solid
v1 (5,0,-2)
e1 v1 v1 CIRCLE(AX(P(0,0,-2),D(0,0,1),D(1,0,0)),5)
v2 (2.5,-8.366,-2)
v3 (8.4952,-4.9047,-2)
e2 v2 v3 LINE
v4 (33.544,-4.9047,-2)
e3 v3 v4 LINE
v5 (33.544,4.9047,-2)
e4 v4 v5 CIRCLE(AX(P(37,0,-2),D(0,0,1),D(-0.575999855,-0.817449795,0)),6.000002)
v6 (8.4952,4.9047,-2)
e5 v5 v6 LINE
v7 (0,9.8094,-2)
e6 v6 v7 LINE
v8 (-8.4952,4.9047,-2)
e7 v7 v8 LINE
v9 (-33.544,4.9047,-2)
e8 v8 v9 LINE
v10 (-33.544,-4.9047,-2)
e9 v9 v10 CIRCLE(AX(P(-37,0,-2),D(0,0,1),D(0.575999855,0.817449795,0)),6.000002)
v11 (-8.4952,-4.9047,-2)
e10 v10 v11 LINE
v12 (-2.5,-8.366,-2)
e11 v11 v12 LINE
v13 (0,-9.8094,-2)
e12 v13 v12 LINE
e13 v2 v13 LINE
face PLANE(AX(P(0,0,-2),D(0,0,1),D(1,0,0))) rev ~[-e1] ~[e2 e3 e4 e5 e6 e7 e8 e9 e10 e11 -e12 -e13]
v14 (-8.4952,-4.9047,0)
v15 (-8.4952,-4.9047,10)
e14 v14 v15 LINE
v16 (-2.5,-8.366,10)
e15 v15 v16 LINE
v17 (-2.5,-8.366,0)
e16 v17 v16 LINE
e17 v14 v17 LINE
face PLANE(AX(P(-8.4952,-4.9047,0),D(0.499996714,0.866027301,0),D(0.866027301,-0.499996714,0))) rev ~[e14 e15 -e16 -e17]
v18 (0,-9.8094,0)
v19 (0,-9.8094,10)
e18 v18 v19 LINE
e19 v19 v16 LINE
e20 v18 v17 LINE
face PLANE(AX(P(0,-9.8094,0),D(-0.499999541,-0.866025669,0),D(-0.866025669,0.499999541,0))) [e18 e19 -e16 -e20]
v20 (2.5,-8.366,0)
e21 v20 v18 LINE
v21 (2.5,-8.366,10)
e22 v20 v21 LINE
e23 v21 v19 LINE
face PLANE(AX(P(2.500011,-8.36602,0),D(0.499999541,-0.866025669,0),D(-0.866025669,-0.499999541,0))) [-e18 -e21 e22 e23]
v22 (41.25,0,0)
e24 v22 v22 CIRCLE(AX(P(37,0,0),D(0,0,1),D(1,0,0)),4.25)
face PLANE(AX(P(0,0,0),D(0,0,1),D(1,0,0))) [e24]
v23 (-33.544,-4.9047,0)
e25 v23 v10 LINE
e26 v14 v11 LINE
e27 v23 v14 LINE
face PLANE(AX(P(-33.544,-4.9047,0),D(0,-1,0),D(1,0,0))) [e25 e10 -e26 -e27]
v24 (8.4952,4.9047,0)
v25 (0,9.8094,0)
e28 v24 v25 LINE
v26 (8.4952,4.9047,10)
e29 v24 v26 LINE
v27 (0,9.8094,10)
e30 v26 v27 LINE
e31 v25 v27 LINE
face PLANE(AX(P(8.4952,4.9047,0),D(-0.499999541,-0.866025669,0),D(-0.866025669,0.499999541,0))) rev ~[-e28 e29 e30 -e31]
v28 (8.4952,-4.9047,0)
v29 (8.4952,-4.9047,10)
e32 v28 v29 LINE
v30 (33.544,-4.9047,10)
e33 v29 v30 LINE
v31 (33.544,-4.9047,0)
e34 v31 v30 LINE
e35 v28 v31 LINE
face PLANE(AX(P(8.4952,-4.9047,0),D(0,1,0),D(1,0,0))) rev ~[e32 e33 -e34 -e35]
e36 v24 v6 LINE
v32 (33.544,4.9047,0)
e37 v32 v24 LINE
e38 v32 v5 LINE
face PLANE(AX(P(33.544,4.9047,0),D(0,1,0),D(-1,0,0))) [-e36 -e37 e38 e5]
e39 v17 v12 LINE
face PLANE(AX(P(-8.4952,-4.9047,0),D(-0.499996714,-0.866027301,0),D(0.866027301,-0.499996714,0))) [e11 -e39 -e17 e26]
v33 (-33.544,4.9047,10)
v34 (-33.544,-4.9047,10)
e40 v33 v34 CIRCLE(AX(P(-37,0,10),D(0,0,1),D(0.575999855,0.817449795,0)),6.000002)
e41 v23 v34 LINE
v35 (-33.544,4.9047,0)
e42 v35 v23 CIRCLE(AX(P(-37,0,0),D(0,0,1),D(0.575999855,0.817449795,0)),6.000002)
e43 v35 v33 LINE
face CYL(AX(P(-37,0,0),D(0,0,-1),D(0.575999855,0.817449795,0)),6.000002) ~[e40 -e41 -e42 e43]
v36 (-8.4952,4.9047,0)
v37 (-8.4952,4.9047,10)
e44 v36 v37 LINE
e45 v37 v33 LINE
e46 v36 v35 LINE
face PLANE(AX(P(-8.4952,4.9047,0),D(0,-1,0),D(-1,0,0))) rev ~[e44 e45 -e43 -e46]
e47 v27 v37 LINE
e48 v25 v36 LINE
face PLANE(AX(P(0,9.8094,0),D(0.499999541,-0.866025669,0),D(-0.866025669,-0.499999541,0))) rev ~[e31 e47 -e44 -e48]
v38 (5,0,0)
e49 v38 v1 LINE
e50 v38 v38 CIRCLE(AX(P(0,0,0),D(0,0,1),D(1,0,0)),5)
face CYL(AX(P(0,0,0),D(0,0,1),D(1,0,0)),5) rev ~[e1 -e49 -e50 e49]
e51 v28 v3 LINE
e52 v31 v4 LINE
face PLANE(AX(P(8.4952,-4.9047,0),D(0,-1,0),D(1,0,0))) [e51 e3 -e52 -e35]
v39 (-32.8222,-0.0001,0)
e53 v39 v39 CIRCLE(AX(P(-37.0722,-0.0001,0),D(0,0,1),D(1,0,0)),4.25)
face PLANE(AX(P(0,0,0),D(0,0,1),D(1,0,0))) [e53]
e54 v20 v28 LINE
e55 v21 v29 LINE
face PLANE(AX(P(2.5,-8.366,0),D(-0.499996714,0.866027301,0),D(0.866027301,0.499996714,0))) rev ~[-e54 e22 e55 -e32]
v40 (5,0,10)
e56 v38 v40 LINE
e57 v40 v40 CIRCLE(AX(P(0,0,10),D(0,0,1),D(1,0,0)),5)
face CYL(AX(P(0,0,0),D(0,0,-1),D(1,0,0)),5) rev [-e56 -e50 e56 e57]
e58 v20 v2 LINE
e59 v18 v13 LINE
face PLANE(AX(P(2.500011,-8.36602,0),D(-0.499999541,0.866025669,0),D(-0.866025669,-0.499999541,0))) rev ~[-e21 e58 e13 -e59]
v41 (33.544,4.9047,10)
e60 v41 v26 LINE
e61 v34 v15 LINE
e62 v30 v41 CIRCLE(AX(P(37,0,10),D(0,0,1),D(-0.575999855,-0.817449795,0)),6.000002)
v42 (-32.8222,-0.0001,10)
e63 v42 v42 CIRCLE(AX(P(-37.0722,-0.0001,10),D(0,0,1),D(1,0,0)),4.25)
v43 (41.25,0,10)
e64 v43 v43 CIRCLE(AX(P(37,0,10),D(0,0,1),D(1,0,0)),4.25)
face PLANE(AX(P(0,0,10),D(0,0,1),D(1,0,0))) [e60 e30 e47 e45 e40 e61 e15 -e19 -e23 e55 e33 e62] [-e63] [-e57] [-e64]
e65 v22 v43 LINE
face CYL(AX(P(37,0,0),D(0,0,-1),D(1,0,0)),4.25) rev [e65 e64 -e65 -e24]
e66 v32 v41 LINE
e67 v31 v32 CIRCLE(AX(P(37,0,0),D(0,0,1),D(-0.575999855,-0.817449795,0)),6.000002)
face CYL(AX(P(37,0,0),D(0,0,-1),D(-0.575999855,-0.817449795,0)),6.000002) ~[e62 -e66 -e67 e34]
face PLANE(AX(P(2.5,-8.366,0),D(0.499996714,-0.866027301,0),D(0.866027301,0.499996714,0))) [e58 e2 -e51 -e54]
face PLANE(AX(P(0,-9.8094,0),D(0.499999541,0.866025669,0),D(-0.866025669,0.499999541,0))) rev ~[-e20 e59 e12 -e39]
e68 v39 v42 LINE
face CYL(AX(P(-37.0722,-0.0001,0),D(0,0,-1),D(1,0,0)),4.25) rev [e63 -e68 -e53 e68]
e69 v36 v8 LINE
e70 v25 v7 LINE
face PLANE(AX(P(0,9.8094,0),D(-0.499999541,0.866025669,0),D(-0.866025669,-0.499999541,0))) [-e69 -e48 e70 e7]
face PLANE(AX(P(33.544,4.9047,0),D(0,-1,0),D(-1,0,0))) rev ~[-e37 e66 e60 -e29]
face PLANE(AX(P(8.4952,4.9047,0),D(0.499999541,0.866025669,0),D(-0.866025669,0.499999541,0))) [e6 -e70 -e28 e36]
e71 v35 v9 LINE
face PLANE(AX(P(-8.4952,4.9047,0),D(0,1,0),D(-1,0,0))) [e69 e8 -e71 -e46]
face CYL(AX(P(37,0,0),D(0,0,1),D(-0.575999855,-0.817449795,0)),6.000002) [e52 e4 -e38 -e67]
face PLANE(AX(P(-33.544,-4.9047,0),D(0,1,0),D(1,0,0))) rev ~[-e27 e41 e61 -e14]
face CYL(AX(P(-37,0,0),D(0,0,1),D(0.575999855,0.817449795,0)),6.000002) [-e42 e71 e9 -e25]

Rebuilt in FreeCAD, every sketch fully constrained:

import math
import FreeCAD as App
import Part
import Sketcher
Q = App.Units.Quantity

doc = App.newDocument("Part")
body = doc.addObject("PartDesign::Body", "Body")

# Sketch on XY plane
sketch1 = body.newObject("Sketcher::SketchObject", "Sketch")
sketch1.AttachmentSupport = (doc.getObject("XY_Plane"), [""])
sketch1.MapMode = "FlatFace"
sketch1.addGeometry([
    Part.LineSegment(App.Vector(-8.5, -4.9, 0), App.Vector(-2.5, -8.4, 0)),  # 0
    Part.LineSegment(App.Vector(-2.5, -8.4, 0), App.Vector(0, -9.8, 0)),  # 1
    Part.LineSegment(App.Vector(0, -9.8, 0), App.Vector(2.5, -8.4, 0)),  # 2
    Part.LineSegment(App.Vector(2.5, -8.4, 0), App.Vector(8.5, -4.9, 0)),  # 3
    Part.LineSegment(App.Vector(8.5, -4.9, 0), App.Vector(33.5, -4.9, 0)),  # 4
    Part.ArcOfCircle(Part.Circle(App.Vector(37, 0, 0), App.Vector(0, 0, 1), 6), math.radians(-125), math.radians(125)),  # 5
    Part.LineSegment(App.Vector(33.5, 4.9, 0), App.Vector(8.5, 4.9, 0)),  # 6
    Part.LineSegment(App.Vector(8.5, 4.9, 0), App.Vector(0, 9.8, 0)),  # 7
    Part.LineSegment(App.Vector(0, 9.8, 0), App.Vector(-8.5, 4.9, 0)),  # 8
    Part.LineSegment(App.Vector(-8.5, 4.9, 0), App.Vector(-33.5, 4.9, 0)),  # 9
    Part.ArcOfCircle(Part.Circle(App.Vector(-37, 0, 0), App.Vector(0, 0, 1), 6), math.radians(55), math.radians(305)),  # 10
    Part.LineSegment(App.Vector(-33.5, -4.9, 0), App.Vector(-8.5, -4.9, 0)),  # 11
    Part.Circle(App.Vector(0, 0, 0), App.Vector(0, 0, 1), 5),  # 12
], False)
sketch1.addConstraint([
    Sketcher.Constraint("Coincident", 0, 2, 1, 1),
    Sketcher.Constraint("Coincident", 1, 2, 2, 1),
    Sketcher.Constraint("Coincident", 2, 2, 3, 1),
    Sketcher.Constraint("Coincident", 3, 2, 4, 1),
    Sketcher.Constraint("Coincident", 4, 2, 5, 1),
    Sketcher.Constraint("Coincident", 5, 2, 6, 1),
    Sketcher.Constraint("Coincident", 6, 2, 7, 1),
    Sketcher.Constraint("Coincident", 7, 2, 8, 1),
    Sketcher.Constraint("Coincident", 8, 2, 9, 1),
    Sketcher.Constraint("Coincident", 9, 2, 10, 1),
    Sketcher.Constraint("Coincident", 10, 2, 11, 1),
    Sketcher.Constraint("Coincident", 11, 2, 0, 1),
    Sketcher.Constraint("Horizontal", 4),
    Sketcher.Constraint("Horizontal", 6),
    Sketcher.Constraint("Horizontal", 9),
    Sketcher.Constraint("Horizontal", 11),
    Sketcher.Constraint("Coincident", 12, 3, -1, 1),
    Sketcher.Constraint("Equal", 5, 10),
    Sketcher.Constraint("Symmetric", 5, 3, 10, 3, -1, 1),
    Sketcher.Constraint("Symmetric", 1, 2, 7, 2, -1, 1),
    Sketcher.Constraint("Symmetric", 3, 2, 8, 2, -1, 1),
    Sketcher.Constraint("Symmetric", 6, 2, 11, 2, -1, 1),
    Sketcher.Constraint("Symmetric", 0, 2, 2, 2, -2),
    Sketcher.Constraint("Symmetric", 6, 2, 8, 2, -2),
    Sketcher.Constraint("PointOnObject", 5, 3, -1),
    Sketcher.Constraint("PointOnObject", 1, 2, -2),
    Sketcher.Constraint("Parallel", 0, 1),
    Sketcher.Constraint("Diameter", 12, Q("10 mm")),
    Sketcher.Constraint("Radius", 5, Q("6 mm")),
    Sketcher.Constraint("Angle", 0, Q("-29.9998 deg")),
    Sketcher.Constraint("DistanceX", -1, 1, 5, 3, Q("37 mm")),
    Sketcher.Constraint("DistanceX", 0, 2, 2, 2, Q("5 mm")),
    Sketcher.Constraint("DistanceX", 4, 1, 4, 2, Q("25.0488 mm")),
    Sketcher.Constraint("DistanceY", 0, 2, -1, 1, Q("8.366 mm")),
])
pad1 = body.newObject("PartDesign::Pad", "Pad")
pad1.Profile = sketch1
pad1.Length = 2
pad1.Reversed = True

# Sketch on XY plane
sketch2 = body.newObject("Sketcher::SketchObject", "Sketch001")
sketch2.AttachmentSupport = (doc.getObject("XY_Plane"), [""])
sketch2.MapMode = "FlatFace"
sketch2.addGeometry([
    Part.LineSegment(App.Vector(-8.5, -4.9, 0), App.Vector(-2.5, -8.4, 0)),  # 0
    Part.LineSegment(App.Vector(-2.5, -8.4, 0), App.Vector(0, -9.8, 0)),  # 1
    Part.LineSegment(App.Vector(0, -9.8, 0), App.Vector(2.5, -8.4, 0)),  # 2
    Part.LineSegment(App.Vector(2.5, -8.4, 0), App.Vector(8.5, -4.9, 0)),  # 3
    Part.LineSegment(App.Vector(8.5, -4.9, 0), App.Vector(33.5, -4.9, 0)),  # 4
    Part.ArcOfCircle(Part.Circle(App.Vector(37, 0, 0), App.Vector(0, 0, 1), 6), math.radians(-125), math.radians(125)),  # 5
    Part.LineSegment(App.Vector(33.5, 4.9, 0), App.Vector(8.5, 4.9, 0)),  # 6
    Part.LineSegment(App.Vector(8.5, 4.9, 0), App.Vector(0, 9.8, 0)),  # 7
    Part.LineSegment(App.Vector(0, 9.8, 0), App.Vector(-8.5, 4.9, 0)),  # 8
    Part.LineSegment(App.Vector(-8.5, 4.9, 0), App.Vector(-33.5, 4.9, 0)),  # 9
    Part.ArcOfCircle(Part.Circle(App.Vector(-37, 0, 0), App.Vector(0, 0, 1), 6), math.radians(55), math.radians(305)),  # 10
    Part.LineSegment(App.Vector(-33.5, -4.9, 0), App.Vector(-8.5, -4.9, 0)),  # 11
    Part.Circle(App.Vector(0, 0, 0), App.Vector(0, 0, 1), 5),  # 12
    Part.Circle(App.Vector(-37.1, 0, 0), App.Vector(0, 0, 1), 4.2),  # 13
    Part.Circle(App.Vector(37, 0, 0), App.Vector(0, 0, 1), 4.2),  # 14
], False)
sketch2.addConstraint([
    Sketcher.Constraint("Coincident", 0, 2, 1, 1),
    Sketcher.Constraint("Coincident", 1, 2, 2, 1),
    Sketcher.Constraint("Coincident", 2, 2, 3, 1),
    Sketcher.Constraint("Coincident", 3, 2, 4, 1),
    Sketcher.Constraint("Coincident", 4, 2, 5, 1),
    Sketcher.Constraint("Coincident", 5, 2, 6, 1),
    Sketcher.Constraint("Coincident", 6, 2, 7, 1),
    Sketcher.Constraint("Coincident", 7, 2, 8, 1),
    Sketcher.Constraint("Coincident", 8, 2, 9, 1),
    Sketcher.Constraint("Coincident", 9, 2, 10, 1),
    Sketcher.Constraint("Coincident", 10, 2, 11, 1),
    Sketcher.Constraint("Coincident", 11, 2, 0, 1),
    Sketcher.Constraint("Horizontal", 4),
    Sketcher.Constraint("Horizontal", 6),
    Sketcher.Constraint("Horizontal", 9),
    Sketcher.Constraint("Horizontal", 11),
    Sketcher.Constraint("Coincident", 12, 3, -1, 1),
    Sketcher.Constraint("Coincident", 14, 3, 5, 3),
    Sketcher.Constraint("Equal", 5, 10),
    Sketcher.Constraint("Equal", 13, 14),
    Sketcher.Constraint("Symmetric", 5, 3, 10, 3, -1, 1),
    Sketcher.Constraint("Symmetric", 1, 2, 7, 2, -1, 1),
    Sketcher.Constraint("Symmetric", 3, 2, 8, 2, -1, 1),
    Sketcher.Constraint("Symmetric", 6, 2, 11, 2, -1, 1),
    Sketcher.Constraint("Symmetric", 0, 2, 2, 2, -2),
    Sketcher.Constraint("Symmetric", 6, 2, 8, 2, -2),
    Sketcher.Constraint("PointOnObject", 5, 3, -1),
    Sketcher.Constraint("PointOnObject", 13, 3, -1),
    Sketcher.Constraint("PointOnObject", 1, 2, -2),
    Sketcher.Constraint("Parallel", 0, 1),
    Sketcher.Constraint("Diameter", 12, Q("10 mm")),
    Sketcher.Constraint("Radius", 5, Q("6 mm")),
    Sketcher.Constraint("Diameter", 13, Q("8.5 mm")),
    Sketcher.Constraint("Angle", 0, Q("-29.9998 deg")),
    Sketcher.Constraint("DistanceX", -1, 1, 5, 3, Q("37 mm")),
    Sketcher.Constraint("DistanceX", 0, 2, 2, 2, Q("5 mm")),
    Sketcher.Constraint("DistanceX", 4, 1, 4, 2, Q("25.0488 mm")),
    Sketcher.Constraint("DistanceY", 0, 2, -1, 1, Q("8.366 mm")),
    Sketcher.Constraint("DistanceX", 13, 3, -1, 1, Q("37.0722 mm")),
])
pad2 = body.newObject("PartDesign::Pad", "Pad001")
pad2.Profile = sketch2
pad2.Length = 10

doc.recompute()
